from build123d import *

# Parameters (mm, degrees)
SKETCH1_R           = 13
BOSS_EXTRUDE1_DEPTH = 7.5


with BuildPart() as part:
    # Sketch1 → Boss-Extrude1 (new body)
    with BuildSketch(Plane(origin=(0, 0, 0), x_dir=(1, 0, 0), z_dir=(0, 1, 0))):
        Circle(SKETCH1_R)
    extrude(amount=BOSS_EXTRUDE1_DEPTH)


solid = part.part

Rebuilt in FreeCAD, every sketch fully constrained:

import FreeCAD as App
import Part
import Sketcher
from FreeCAD import Vector

doc = App.newDocument("Part")
body = doc.addObject("PartDesign::Body", "Body")

sketch1 = body.newObject("Sketcher::SketchObject", "Sketch")
sketch1.AttachmentSupport = (doc.getObject("XZ_Plane"), [""])
sketch1.MapMode = "FlatFace"
sketch1.addGeometry(Part.Circle(Vector(0, 0, 0), Vector(0, 0, 1), 13), False)
sketch1.addConstraint([
    Sketcher.Constraint("Coincident", 0, 3, -1, 1),
    Sketcher.Constraint("Diameter", 0, 26.0),
])
pad1 = body.newObject("PartDesign::Pad", "Pad")
pad1.Profile = sketch1
pad1.Length = 7.5
pad1.Reversed = True

doc.recompute()
